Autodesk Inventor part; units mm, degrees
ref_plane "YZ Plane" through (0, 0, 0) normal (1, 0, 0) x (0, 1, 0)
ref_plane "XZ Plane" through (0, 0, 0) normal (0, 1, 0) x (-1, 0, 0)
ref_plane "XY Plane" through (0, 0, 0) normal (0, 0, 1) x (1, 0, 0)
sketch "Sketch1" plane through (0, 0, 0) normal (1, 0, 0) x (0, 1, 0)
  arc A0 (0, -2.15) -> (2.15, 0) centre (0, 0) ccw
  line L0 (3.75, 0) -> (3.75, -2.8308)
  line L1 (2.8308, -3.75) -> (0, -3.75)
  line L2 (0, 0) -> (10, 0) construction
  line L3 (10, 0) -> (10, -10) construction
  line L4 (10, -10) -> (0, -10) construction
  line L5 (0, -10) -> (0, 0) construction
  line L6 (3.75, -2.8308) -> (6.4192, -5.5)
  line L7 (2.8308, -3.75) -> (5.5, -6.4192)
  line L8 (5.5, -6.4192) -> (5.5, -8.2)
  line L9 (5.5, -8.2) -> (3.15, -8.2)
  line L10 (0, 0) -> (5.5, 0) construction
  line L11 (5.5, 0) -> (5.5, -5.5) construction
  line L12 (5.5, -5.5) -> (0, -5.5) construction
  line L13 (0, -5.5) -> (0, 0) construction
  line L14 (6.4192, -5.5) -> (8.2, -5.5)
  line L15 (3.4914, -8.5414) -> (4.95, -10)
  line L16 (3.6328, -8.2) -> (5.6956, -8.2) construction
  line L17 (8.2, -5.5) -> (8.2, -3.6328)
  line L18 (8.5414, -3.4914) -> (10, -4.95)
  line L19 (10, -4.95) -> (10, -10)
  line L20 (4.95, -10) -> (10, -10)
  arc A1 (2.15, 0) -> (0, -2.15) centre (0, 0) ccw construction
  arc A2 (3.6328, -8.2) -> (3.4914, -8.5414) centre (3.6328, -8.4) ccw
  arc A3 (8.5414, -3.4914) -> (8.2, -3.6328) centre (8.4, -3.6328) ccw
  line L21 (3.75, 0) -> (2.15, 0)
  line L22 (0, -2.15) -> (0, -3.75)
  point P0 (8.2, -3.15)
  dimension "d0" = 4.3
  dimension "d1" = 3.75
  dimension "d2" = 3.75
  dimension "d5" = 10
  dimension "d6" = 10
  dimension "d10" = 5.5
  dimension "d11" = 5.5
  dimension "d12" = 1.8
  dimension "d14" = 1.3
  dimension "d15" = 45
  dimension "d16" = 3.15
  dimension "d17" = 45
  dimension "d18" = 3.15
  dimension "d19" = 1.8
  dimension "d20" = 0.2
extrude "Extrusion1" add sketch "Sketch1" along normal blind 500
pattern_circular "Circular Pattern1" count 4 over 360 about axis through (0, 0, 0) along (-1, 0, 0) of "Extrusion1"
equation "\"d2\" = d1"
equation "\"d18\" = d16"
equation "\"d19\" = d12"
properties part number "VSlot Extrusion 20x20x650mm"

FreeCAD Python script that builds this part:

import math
import FreeCAD as App
import Part
import Sketcher
Q = App.Units.Quantity

doc = App.newDocument("Part")
body = doc.addObject("PartDesign::Body", "Body")

sketch1 = body.newObject("Sketcher::SketchObject", "Sketch")
sketch1.AttachmentSupport = (doc.getObject("YZ_Plane"), [""])
sketch1.MapMode = "FlatFace"
sketch1.addGeometry(Part.ArcOfCircle(Part.Circle(App.Vector(0, 0, 0), App.Vector(0, 0, 1), 2.15), math.radians(-90), math.radians(0)), False)
sketch1.addGeometry(Part.LineSegment(App.Vector(0, -2.15, 0), App.Vector(0, -3.75, 0)), False)
sketch1.addGeometry(Part.LineSegment(App.Vector(0, -3.75, 0), App.Vector(2.83, -3.75, 0)), False)
sketch1.addGeometry(Part.LineSegment(App.Vector(2.83, -3.75, 0), App.Vector(5.5, -6.42, 0)), False)
sketch1.addGeometry(Part.LineSegment(App.Vector(5.5, -6.42, 0), App.Vector(5.5, -8.2, 0)), False)
sketch1.addGeometry(Part.LineSegment(App.Vector(5.5, -8.2, 0), App.Vector(3.63, -8.2, 0)), False)
sketch1.addGeometry(Part.ArcOfCircle(Part.Circle(App.Vector(3.63, -8.4, 0), App.Vector(0, 0, 1), 0.2), math.radians(90), math.radians(225)), False)
sketch1.addGeometry(Part.LineSegment(App.Vector(3.49, -8.54, 0), App.Vector(4.95, -10, 0)), False)
sketch1.addGeometry(Part.LineSegment(App.Vector(4.95, -10, 0), App.Vector(10, -10, 0)), False)
sketch1.addGeometry(Part.LineSegment(App.Vector(10, -10, 0), App.Vector(10, -4.95, 0)), False)
sketch1.addGeometry(Part.LineSegment(App.Vector(10, -4.95, 0), App.Vector(8.54, -3.49, 0)), False)
sketch1.addGeometry(Part.ArcOfCircle(Part.Circle(App.Vector(8.4, -3.63, 0), App.Vector(0, 0, 1), 0.2), math.radians(45), math.radians(180)), False)
sketch1.addGeometry(Part.LineSegment(App.Vector(8.2, -3.63, 0), App.Vector(8.2, -5.5, 0)), False)
sketch1.addGeometry(Part.LineSegment(App.Vector(8.2, -5.5, 0), App.Vector(6.42, -5.5, 0)), False)
sketch1.addGeometry(Part.LineSegment(App.Vector(6.42, -5.5, 0), App.Vector(3.75, -2.83, 0)), False)
sketch1.addGeometry(Part.LineSegment(App.Vector(3.75, -2.83, 0), App.Vector(3.75, 0, 0)), False)
sketch1.addGeometry(Part.LineSegment(App.Vector(3.75, 0, 0), App.Vector(2.15, 0, 0)), False)
sketch1.addConstraint(Sketcher.Constraint("Coincident", 0, 1, 1, 1))
sketch1.addConstraint(Sketcher.Constraint("Coincident", 1, 2, 2, 1))
sketch1.addConstraint(Sketcher.Constraint("Coincident", 2, 2, 3, 1))
sketch1.addConstraint(Sketcher.Constraint("Coincident", 3, 2, 4, 1))
sketch1.addConstraint(Sketcher.Constraint("Coincident", 4, 2, 5, 1))
sketch1.addConstraint(Sketcher.Constraint("Tangent", 5, 2, 6, 1))
sketch1.addConstraint(Sketcher.Constraint("Tangent", 6, 2, 7, 1))
sketch1.addConstraint(Sketcher.Constraint("Coincident", 7, 2, 8, 1))
sketch1.addConstraint(Sketcher.Constraint("Coincident", 8, 2, 9, 1))
sketch1.addConstraint(Sketcher.Constraint("Coincident", 9, 2, 10, 1))
sketch1.addConstraint(Sketcher.Constraint("Tangent", 10, 2, 11, 1))
sketch1.addConstraint(Sketcher.Constraint("Tangent", 11, 2, 12, 1))
sketch1.addConstraint(Sketcher.Constraint("Coincident", 12, 2, 13, 1))
sketch1.addConstraint(Sketcher.Constraint("Coincident", 13, 2, 14, 1))
sketch1.addConstraint(Sketcher.Constraint("Coincident", 14, 2, 15, 1))
sketch1.addConstraint(Sketcher.Constraint("Coincident", 15, 2, 16, 1))
sketch1.addConstraint(Sketcher.Constraint("Coincident", 16, 2, 0, 2))
sketch1.addConstraint(Sketcher.Constraint("Vertical", 1))
sketch1.addConstraint(Sketcher.Constraint("Horizontal", 2))
sketch1.addConstraint(Sketcher.Constraint("Vertical", 4))
sketch1.addConstraint(Sketcher.Constraint("Horizontal", 5))
sketch1.addConstraint(Sketcher.Constraint("Horizontal", 8))
sketch1.addConstraint(Sketcher.Constraint("Vertical", 9))
sketch1.addConstraint(Sketcher.Constraint("Vertical", 12))
sketch1.addConstraint(Sketcher.Constraint("Horizontal", 13))
sketch1.addConstraint(Sketcher.Constraint("Vertical", 15))
sketch1.addConstraint(Sketcher.Constraint("Horizontal", 16))
sketch1.addConstraint(Sketcher.Constraint("Coincident", 0, 3, -1, 1))
sketch1.addConstraint(Sketcher.Constraint("Equal", 6, 11))
sketch1.addConstraint(Sketcher.Constraint("PointOnObject", 0, 1, -2))
sketch1.addConstraint(Sketcher.Constraint("PointOnObject", 15, 2, -1))
sketch1.addConstraint(Sketcher.Constraint("Parallel", 3, 7))
sketch1.addConstraint(Sketcher.Constraint("Parallel", 7, 10))
sketch1.addConstraint(Sketcher.Constraint("Parallel", 10, 14))
sketch1.addConstraint(Sketcher.Constraint("Equal", 16, 1))
sketch1.addConstraint(Sketcher.Constraint("Equal", 13, 4))
sketch1.addConstraint(Sketcher.Constraint("Equal", 8, 9))
sketch1.addConstraint(Sketcher.Constraint("Equal", 5, 12))
sketch1.addConstraint(Sketcher.Constraint("Equal", 2, 15))
sketch1.addConstraint(Sketcher.Constraint("Equal", 7, 10))
sketch1.addConstraint(Sketcher.Constraint("Equal", 3, 14))
sketch1.addConstraint(Sketcher.Constraint("Radius", 6, Q("0.2 mm")))
sketch1.addConstraint(Sketcher.Constraint("Radius", 0, Q("2.15 mm")))
sketch1.addConstraint(Sketcher.Constraint("DistanceY", 7, 2, -1, 1, Q("10 mm")))
sketch1.addConstraint(Sketcher.Constraint("DistanceX", -1, 1, 3, 2, Q("5.5 mm")))
sketch1.addConstraint(Sketcher.Constraint("DistanceY", 7, 2, 4, 2, Q("1.8 mm")))
sketch1.addConstraint(Sketcher.Constraint("DistanceY", 1, 2, -1, 1, Q("3.75 mm")))
sketch1.addConstraint(Sketcher.Constraint("DistanceX", 8, 1, 8, 2, Q("5.05 mm")))
sketch1.addConstraint(Sketcher.Constraint("DistanceX", 2, 1, 2, 2, Q("2.8308 mm")))
pad1 = body.newObject("PartDesign::Pad", "Pad")
pad1.Profile = sketch1
pad1.Length = 500
doc.recompute()

polarpattern = body.newObject("PartDesign::PolarPattern", "PolarPattern")
polarpattern.Originals = [pad1]
polarpattern.Axis = (doc.getObject("X_Axis"), [""])
polarpattern.Angle = 360
polarpattern.Occurrences = 4
body.Tip = polarpattern

doc.recompute()
